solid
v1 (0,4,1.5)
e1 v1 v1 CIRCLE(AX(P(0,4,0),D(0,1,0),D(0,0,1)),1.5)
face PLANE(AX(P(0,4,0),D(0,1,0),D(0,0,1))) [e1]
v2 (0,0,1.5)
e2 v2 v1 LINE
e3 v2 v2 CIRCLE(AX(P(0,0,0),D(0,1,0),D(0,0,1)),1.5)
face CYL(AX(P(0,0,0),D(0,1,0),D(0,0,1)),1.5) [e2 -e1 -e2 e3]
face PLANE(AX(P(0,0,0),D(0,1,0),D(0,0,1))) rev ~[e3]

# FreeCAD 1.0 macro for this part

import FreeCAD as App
import Part
import Sketcher

doc = App.newDocument("Part")
params = doc.addObject("Spreadsheet::Sheet", "Params")
for row, (alias, value) in enumerate([
    ("sketch1_diameter", "3 mm"),
    ("sketch2_height", "4 mm"),
], start=1):
    params.set(f"A{row}", alias)
    params.set(f"B{row}", "=" + value)
    params.setAlias(f"B{row}", alias)

body = doc.addObject("PartDesign::Body", "Body")

# Sketch on XZ plane
sketch1 = doc.addObject("Sketcher::SketchObject", "Sketch")
body.addObject(sketch1)
sketch1.AttachmentSupport = (doc.XZ_Plane, [""])
sketch1.MapMode = "FlatFace"
sketch1.addGeometry(Part.Circle(App.Vector(0, 0, 0), App.Vector(0, 0, 1), 1.5), False)
sketch1.addConstraint(Sketcher.Constraint("Coincident", 0, 3, -1, 1))
sketch1.addConstraint(Sketcher.Constraint("Diameter", 0, 3.0))
sketch1.setExpression("Constraints[1]", "Params.sketch1_diameter")

# Sketch on XY plane
sketch2 = doc.addObject("Sketcher::SketchObject", "Sketch001")
body.addObject(sketch2)
sketch2.AttachmentSupport = (doc.XY_Plane, [""])
sketch2.MapMode = "FlatFace"
sketch2.addGeometry(Part.LineSegment(App.Vector(0, 0, 0), App.Vector(0, 4, 0)), False)
sketch2.addConstraint(Sketcher.Constraint("Vertical", 0))
sketch2.addConstraint(Sketcher.Constraint("Coincident", 0, 1, -1, 1))
sketch2.addConstraint(Sketcher.Constraint("DistanceY", 0, 1, 0, 2, 4.0))
sketch2.setExpression("Constraints[2]", "Params.sketch2_height")
doc.recompute()

additivepipe = doc.addObject("PartDesign::AdditivePipe", "AdditivePipe")
body.addObject(additivepipe)
additivepipe.Profile = sketch1
additivepipe.Spine = (sketch2, ["Edge1"])

doc.recompute()
